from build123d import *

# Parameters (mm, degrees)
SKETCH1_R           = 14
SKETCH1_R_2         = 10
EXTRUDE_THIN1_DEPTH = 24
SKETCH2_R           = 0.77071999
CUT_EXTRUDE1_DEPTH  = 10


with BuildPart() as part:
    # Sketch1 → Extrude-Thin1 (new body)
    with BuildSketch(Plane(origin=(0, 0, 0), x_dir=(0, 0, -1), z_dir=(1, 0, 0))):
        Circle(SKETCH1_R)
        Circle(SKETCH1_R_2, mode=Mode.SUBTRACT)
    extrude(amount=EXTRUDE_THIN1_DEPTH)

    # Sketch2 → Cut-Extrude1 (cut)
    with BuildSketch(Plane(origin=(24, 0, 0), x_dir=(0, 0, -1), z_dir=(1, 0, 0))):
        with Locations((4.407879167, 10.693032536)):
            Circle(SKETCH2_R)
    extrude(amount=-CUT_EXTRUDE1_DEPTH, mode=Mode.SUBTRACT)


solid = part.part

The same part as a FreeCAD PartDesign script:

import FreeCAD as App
import Part
import Sketcher

V = App.Vector

doc = App.newDocument("Part")
body = doc.addObject("PartDesign::Body", "Body")

# Sketch on YZ plane
sketch1 = body.newObject("Sketcher::SketchObject", "Sketch")
sketch1.AttachmentSupport = (doc.getObject("YZ_Plane"), [""])
sketch1.MapMode = "FlatFace"
sketch1.addGeometry([
    Part.Circle(V(0, 0, 0), V(0, 0, 1), 14),
    Part.Circle(V(0, 0, 0), V(0, 0, 1), 10),
], False)
sketch1.addConstraint([
    Sketcher.Constraint("Coincident", 0, 3, -1, 1),
    Sketcher.Constraint("Coincident", 1, 3, -1, 1),
    Sketcher.Constraint("Diameter", 0, 28.0),
    Sketcher.Constraint("Diameter", 1, 20.0),
])
pad1 = body.newObject("PartDesign::Pad", "Pad")
pad1.Profile = sketch1
pad1.Length = 24

# Sketch on YZ plane
sketch2 = body.newObject("Sketcher::SketchObject", "Sketch001")
sketch2.AttachmentSupport = (doc.getObject("YZ_Plane"), [""])
sketch2.MapMode = "FlatFace"
sketch2.AttachmentOffset = App.Placement(V(0, 0, 24), App.Rotation())
sketch2.addGeometry(Part.Circle(V(10.693033, -4.407879, 0), V(0, 0, 1), 0.77072), False)
sketch2.addConstraint([
    Sketcher.Constraint("Diameter", 0, 1.54144),
    Sketcher.Constraint("DistanceY", 0, 3, -1, 1, 4.407879),
    Sketcher.Constraint("DistanceX", -1, 1, 0, 3, 10.693033),
])
pocket1 = body.newObject("PartDesign::Pocket", "Pocket")
pocket1.Profile = sketch2
pocket1.Length = 10

doc.recompute()
